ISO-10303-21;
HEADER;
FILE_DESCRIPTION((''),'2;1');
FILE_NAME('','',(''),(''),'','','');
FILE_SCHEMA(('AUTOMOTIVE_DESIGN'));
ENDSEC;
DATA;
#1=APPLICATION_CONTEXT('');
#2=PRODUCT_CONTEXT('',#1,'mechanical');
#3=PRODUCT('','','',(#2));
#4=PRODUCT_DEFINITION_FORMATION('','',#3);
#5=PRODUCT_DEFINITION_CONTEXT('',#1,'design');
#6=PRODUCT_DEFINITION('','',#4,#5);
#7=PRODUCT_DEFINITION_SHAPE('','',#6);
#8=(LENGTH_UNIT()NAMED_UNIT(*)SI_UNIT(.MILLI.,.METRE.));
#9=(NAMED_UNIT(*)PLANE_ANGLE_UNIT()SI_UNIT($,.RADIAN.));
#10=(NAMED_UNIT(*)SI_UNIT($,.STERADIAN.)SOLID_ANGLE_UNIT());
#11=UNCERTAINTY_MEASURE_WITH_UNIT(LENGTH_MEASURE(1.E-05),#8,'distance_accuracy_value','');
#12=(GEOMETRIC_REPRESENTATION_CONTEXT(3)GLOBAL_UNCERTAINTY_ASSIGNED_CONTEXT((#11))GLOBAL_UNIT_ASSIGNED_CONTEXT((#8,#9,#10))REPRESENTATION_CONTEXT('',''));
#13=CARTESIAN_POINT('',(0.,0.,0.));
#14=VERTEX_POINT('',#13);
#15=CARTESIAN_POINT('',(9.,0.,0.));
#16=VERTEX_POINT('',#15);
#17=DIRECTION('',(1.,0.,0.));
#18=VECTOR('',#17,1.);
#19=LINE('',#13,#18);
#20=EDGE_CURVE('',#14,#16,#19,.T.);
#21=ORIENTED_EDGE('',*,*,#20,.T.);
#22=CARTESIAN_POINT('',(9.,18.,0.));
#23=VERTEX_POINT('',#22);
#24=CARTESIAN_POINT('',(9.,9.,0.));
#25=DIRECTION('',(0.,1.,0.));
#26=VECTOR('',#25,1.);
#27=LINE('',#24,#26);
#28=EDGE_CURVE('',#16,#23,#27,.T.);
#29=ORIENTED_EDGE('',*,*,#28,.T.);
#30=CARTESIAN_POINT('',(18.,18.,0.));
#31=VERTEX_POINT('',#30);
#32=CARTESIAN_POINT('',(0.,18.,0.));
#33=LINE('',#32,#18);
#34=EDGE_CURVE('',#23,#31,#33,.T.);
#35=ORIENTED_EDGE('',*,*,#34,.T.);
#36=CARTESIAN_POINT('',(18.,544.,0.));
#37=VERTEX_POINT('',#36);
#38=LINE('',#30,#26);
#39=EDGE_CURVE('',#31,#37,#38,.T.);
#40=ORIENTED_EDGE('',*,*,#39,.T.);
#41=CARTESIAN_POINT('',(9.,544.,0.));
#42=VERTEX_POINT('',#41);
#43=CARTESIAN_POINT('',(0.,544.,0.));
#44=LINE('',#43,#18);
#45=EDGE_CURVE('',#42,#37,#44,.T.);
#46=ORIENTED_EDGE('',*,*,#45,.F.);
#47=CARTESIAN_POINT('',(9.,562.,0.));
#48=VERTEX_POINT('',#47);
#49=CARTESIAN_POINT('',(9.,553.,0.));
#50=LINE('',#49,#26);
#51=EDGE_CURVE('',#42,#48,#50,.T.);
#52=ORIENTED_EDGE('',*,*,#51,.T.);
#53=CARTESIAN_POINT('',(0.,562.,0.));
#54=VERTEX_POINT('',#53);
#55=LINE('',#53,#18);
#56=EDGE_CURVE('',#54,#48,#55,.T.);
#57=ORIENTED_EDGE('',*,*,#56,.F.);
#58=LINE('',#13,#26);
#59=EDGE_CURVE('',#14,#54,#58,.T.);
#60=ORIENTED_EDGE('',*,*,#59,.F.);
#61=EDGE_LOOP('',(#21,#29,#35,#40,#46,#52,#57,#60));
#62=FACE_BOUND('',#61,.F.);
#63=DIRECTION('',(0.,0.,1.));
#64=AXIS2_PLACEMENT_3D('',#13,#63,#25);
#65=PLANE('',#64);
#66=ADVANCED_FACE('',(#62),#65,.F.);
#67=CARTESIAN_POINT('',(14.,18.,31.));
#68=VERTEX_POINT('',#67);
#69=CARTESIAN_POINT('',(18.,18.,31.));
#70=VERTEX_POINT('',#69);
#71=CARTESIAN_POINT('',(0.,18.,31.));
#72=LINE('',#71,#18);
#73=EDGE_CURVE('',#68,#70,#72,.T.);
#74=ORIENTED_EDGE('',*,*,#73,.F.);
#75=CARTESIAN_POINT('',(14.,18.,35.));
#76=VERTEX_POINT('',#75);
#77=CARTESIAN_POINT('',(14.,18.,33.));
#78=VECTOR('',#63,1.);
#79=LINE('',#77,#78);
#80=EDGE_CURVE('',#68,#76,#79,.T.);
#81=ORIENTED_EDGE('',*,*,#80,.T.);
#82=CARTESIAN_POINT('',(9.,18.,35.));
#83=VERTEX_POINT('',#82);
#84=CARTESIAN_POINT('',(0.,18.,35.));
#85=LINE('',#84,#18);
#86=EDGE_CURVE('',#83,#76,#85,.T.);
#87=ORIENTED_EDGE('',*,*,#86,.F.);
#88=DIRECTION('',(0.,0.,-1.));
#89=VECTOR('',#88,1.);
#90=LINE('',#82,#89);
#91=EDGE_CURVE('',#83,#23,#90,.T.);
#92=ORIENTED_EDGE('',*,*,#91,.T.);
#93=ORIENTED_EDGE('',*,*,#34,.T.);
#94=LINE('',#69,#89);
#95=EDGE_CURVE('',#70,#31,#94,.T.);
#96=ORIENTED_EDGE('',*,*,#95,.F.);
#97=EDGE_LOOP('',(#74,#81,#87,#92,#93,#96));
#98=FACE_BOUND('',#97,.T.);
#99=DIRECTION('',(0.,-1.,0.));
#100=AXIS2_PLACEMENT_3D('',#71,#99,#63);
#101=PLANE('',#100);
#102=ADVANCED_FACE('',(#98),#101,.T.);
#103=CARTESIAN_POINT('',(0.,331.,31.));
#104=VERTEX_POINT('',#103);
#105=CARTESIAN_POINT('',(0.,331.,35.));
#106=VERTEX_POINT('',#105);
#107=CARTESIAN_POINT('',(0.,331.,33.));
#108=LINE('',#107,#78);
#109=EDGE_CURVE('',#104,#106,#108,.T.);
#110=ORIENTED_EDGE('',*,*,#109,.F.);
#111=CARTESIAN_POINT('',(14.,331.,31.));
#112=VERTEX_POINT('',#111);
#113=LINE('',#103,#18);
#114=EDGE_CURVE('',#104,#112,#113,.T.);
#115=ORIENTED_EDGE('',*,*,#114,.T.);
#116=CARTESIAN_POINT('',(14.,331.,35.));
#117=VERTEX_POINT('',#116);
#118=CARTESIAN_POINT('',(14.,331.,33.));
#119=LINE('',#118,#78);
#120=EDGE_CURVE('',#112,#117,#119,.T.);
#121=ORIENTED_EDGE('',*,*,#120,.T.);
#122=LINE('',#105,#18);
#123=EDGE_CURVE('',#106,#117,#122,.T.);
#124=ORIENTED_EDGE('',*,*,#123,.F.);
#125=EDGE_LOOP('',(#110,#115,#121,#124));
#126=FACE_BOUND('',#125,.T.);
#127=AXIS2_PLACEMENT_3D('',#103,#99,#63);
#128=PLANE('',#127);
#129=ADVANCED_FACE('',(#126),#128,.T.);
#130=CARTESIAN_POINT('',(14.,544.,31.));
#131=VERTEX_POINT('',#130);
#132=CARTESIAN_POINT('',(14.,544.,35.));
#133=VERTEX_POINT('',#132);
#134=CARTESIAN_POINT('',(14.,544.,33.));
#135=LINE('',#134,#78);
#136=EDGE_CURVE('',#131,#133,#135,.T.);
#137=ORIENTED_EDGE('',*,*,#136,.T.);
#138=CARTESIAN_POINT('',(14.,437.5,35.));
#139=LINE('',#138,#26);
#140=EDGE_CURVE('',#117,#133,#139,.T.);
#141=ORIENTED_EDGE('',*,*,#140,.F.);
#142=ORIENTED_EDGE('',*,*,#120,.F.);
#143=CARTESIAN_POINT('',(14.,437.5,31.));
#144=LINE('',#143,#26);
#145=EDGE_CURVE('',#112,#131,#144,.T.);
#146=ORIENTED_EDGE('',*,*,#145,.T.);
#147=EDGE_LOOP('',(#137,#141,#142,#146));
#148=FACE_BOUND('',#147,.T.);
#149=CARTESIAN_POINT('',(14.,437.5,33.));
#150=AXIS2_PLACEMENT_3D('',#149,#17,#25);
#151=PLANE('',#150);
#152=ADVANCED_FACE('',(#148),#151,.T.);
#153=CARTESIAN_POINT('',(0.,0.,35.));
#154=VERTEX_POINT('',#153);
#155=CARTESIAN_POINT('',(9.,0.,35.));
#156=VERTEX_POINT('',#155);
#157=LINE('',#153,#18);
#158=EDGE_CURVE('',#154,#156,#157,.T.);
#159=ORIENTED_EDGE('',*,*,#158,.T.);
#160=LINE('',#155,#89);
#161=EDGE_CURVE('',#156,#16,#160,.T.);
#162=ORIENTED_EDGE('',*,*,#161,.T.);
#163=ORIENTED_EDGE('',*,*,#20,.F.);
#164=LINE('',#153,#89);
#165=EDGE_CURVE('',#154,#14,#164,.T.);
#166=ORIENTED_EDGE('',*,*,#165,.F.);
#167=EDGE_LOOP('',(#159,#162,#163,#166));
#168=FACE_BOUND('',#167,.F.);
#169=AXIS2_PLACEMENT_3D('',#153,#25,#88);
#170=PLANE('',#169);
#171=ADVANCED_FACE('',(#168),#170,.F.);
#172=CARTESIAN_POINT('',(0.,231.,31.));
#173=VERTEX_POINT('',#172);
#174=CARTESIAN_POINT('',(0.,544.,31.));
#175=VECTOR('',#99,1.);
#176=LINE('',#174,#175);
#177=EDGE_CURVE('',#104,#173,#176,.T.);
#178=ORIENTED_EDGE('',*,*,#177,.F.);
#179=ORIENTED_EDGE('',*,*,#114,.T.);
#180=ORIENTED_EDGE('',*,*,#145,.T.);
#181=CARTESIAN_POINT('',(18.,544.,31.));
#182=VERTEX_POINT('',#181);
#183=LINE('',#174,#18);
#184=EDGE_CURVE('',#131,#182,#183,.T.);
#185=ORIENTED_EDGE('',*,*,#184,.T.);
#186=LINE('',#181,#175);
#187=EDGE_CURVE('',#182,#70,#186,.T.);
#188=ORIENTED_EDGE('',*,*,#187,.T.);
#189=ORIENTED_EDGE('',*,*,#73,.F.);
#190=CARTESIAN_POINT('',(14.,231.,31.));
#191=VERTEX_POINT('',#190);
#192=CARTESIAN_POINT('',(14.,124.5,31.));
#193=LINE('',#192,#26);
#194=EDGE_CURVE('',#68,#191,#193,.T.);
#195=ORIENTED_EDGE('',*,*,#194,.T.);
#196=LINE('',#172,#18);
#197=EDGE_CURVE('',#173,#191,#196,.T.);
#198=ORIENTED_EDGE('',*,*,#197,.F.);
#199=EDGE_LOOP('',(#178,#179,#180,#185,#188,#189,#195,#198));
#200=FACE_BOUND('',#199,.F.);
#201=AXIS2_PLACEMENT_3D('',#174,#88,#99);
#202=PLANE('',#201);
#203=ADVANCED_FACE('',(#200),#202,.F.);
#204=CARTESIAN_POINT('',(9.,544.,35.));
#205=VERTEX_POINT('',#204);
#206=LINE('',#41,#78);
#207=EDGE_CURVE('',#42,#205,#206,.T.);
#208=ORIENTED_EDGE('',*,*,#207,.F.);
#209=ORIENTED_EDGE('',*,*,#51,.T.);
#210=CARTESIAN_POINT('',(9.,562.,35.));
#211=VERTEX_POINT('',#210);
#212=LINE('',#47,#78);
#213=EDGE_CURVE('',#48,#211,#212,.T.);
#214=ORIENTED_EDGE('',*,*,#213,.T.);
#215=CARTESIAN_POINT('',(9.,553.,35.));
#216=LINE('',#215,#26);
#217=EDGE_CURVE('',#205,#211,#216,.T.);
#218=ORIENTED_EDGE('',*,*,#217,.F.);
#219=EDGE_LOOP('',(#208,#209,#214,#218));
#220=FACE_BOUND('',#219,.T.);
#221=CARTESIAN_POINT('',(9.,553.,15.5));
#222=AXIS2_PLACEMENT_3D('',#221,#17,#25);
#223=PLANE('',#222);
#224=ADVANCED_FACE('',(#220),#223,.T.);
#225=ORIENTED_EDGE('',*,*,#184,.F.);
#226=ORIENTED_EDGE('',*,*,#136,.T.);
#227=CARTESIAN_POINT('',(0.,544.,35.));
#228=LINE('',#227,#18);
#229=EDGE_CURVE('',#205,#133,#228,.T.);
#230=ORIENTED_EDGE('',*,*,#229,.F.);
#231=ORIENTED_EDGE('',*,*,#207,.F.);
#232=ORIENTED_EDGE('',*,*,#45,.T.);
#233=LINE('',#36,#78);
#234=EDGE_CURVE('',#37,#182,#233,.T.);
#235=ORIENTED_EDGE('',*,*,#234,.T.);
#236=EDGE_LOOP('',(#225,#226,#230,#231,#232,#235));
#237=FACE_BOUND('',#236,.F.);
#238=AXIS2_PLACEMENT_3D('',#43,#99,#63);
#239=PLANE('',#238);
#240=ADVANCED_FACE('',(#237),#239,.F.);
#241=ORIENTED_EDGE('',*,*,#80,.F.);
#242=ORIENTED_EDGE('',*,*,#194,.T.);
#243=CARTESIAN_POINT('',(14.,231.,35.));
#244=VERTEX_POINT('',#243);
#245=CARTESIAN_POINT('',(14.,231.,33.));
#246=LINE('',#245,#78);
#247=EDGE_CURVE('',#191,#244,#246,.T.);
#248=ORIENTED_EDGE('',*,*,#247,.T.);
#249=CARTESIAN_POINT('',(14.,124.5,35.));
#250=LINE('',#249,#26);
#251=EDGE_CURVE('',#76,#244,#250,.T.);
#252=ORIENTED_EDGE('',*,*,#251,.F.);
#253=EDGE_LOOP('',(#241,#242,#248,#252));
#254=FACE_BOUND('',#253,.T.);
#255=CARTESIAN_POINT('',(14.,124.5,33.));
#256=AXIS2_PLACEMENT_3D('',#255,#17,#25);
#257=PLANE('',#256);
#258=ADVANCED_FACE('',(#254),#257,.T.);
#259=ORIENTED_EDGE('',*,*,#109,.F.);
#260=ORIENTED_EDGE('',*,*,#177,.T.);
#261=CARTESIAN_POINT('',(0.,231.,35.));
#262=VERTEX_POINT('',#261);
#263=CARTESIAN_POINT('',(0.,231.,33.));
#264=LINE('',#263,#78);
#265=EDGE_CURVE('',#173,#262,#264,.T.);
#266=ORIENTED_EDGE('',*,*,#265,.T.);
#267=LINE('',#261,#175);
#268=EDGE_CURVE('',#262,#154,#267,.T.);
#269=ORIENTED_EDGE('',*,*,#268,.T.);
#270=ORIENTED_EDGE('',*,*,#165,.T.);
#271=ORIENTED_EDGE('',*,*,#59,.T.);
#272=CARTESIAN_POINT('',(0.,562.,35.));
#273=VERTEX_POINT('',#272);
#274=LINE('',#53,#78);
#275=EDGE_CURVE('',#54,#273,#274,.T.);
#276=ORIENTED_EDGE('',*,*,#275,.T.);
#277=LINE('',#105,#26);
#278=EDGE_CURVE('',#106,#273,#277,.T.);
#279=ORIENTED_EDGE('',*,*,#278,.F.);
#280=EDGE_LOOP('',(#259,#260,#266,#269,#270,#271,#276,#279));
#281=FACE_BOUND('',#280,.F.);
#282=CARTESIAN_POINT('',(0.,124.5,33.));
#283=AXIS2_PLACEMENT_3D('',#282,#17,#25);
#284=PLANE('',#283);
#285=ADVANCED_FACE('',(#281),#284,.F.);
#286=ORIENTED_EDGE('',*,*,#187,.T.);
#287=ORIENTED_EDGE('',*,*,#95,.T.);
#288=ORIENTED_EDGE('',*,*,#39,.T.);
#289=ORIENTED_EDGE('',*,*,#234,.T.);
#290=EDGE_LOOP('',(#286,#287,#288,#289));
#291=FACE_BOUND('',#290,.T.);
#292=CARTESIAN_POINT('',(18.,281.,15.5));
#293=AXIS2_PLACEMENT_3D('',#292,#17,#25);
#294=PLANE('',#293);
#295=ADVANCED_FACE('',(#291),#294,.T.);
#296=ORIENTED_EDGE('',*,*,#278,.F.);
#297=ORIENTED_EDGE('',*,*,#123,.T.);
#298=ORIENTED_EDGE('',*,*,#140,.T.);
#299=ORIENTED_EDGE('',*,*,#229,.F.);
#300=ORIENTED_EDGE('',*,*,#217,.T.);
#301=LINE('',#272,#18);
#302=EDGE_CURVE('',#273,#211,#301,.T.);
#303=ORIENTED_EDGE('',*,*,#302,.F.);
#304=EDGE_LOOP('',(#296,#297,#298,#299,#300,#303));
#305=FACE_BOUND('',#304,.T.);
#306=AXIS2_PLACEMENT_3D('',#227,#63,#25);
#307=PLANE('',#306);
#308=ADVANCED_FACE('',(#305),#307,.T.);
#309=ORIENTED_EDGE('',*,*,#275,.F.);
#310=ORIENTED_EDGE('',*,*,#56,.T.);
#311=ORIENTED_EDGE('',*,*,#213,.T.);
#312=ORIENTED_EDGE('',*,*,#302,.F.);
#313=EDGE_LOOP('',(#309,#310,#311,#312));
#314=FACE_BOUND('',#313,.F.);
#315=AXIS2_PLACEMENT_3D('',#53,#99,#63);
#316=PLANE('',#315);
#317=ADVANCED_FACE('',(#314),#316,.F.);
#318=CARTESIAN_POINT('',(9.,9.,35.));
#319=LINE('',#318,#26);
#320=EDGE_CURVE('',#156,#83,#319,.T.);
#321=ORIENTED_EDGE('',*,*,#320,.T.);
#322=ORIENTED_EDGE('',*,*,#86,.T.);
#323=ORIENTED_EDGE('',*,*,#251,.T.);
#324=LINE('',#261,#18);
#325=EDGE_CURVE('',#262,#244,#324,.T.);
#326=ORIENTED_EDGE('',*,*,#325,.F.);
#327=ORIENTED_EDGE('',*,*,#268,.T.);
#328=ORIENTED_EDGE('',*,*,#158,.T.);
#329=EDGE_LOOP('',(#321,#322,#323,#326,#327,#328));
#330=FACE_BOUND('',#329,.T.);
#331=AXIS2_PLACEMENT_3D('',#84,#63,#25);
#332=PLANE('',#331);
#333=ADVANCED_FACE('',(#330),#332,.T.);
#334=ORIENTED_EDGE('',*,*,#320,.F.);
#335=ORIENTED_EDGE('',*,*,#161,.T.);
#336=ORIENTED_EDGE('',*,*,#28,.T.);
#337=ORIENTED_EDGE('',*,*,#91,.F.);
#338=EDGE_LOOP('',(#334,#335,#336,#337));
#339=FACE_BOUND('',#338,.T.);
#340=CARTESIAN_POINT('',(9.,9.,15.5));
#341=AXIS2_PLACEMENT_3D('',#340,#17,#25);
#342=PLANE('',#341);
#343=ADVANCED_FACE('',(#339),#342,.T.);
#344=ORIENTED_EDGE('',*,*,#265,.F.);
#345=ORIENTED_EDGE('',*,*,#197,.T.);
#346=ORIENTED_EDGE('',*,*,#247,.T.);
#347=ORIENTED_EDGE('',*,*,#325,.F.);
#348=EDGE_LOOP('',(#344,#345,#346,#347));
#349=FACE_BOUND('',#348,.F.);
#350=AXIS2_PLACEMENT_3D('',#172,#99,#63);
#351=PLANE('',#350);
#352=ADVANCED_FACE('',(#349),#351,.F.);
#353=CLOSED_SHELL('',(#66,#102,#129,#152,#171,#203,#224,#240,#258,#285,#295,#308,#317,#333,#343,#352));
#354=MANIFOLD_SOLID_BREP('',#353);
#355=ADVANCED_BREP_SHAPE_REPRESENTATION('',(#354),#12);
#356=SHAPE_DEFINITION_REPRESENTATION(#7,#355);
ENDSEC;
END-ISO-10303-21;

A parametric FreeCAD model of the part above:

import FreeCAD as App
import Part
import Sketcher

V = App.Vector


def add_polygon(sketch, points):
    """Adds a closed chain of lines whose ends are joined by coincident constraints."""
    first, n = sketch.GeometryCount, len(points)
    for a, b in zip(points, points[1:] + points[:1]):
        sketch.addGeometry(Part.LineSegment(App.Vector(*a, 0), App.Vector(*b, 0)), False)
    for i in range(n):
        sketch.addConstraint(Sketcher.Constraint("Coincident", first + i, 2, first + (i + 1) % n, 1))

doc = App.newDocument("Part")
params = doc.addObject("Spreadsheet::Sheet", "Params")
for row, (alias, value) in enumerate([
    ("sketch1_width", "526 mm"),
    ("sketch1_height", "31 mm"),
    ("pad1_length", "18 mm"),
    ("sketch2_width", "18 mm"),
    ("sketch2_height", "35 mm"),
    ("pad2_length", "9 mm"),
    ("sketch3_width", "213 mm"),
    ("sketch3_height", "4 mm"),
    ("pad3_length", "14 mm"),
], start=1):
    params.set(f"A{row}", alias)
    params.set(f"B{row}", "=" + value)
    params.setAlias(f"B{row}", alias)

body = doc.addObject("PartDesign::Body", "Body")

# Sketch on YZ plane
sketch1 = body.newObject("Sketcher::SketchObject", "Sketch")
sketch1.AttachmentSupport = (doc.getObject("YZ_Plane"), [""])
sketch1.MapMode = "FlatFace"
add_polygon(sketch1, [(18, 31), (18, 0), (544, 0), (544, 31)])  # lines 0-3
sketch1.addConstraint([
    Sketcher.Constraint("Vertical", 0),
    Sketcher.Constraint("Horizontal", 1),
    Sketcher.Constraint("Vertical", 2),
    Sketcher.Constraint("Horizontal", 3),
    Sketcher.Constraint("PointOnObject", 0, 2, -1),
    Sketcher.Constraint("DistanceX", 1, 1, 1, 2, 526.0),
    Sketcher.Constraint("DistanceY", 0, 2, 0, 1, 31.0),
    Sketcher.Constraint("DistanceX", -1, 1, 0, 2, 18.0),
])
sketch1.setExpression("Constraints[9]", "Params.sketch1_width")
sketch1.setExpression("Constraints[10]", "Params.sketch1_height")
pad1 = body.newObject("PartDesign::Pad", "Pad")
pad1.Profile = sketch1
pad1.setExpression("Length", "Params.pad1_length")

# Sketch on YZ plane
sketch2 = body.newObject("Sketcher::SketchObject", "Sketch001")
sketch2.AttachmentSupport = (doc.getObject("YZ_Plane"), [""])
sketch2.MapMode = "FlatFace"
add_polygon(sketch2, [(0, 0), (18, 0), (18, 35), (0, 35)])  # lines 0-3
add_polygon(sketch2, [(544, 0), (562, 0), (562, 35), (544, 35)])  # lines 4-7
sketch2.addConstraint([
    Sketcher.Constraint("Horizontal", 0),
    Sketcher.Constraint("Vertical", 1),
    Sketcher.Constraint("Horizontal", 2),
    Sketcher.Constraint("Vertical", 3),
    Sketcher.Constraint("Horizontal", 4),
    Sketcher.Constraint("Vertical", 5),
    Sketcher.Constraint("Horizontal", 6),
    Sketcher.Constraint("Vertical", 7),
    Sketcher.Constraint("Coincident", 3, 2, -1, 1),
    Sketcher.Constraint("PointOnObject", 4, 2, -1),
    Sketcher.Constraint("Horizontal", 2, 2, 5, 2),
    Sketcher.Constraint("Equal", 2, 4),
    Sketcher.Constraint("DistanceX", 0, 1, 0, 2, 18.0),
    Sketcher.Constraint("DistanceY", 1, 1, 1, 2, 35.0),
    Sketcher.Constraint("DistanceX", -1, 1, 4, 2, 562.0),
])
sketch2.setExpression("Constraints[20]", "Params.sketch2_width")
sketch2.setExpression("Constraints[21]", "Params.sketch2_height")
pad2 = body.newObject("PartDesign::Pad", "Pad001")
pad2.Profile = sketch2
pad2.setExpression("Length", "Params.pad2_length")

# Sketch on YZ plane
sketch3 = body.newObject("Sketcher::SketchObject", "Sketch002")
sketch3.AttachmentSupport = (doc.getObject("YZ_Plane"), [""])
sketch3.MapMode = "FlatFace"
add_polygon(sketch3, [(18, 35), (18, 31), (231, 31), (231, 35)])  # lines 0-3
add_polygon(sketch3, [(331, 35), (331, 31), (544, 31), (544, 35)])  # lines 4-7
sketch3.addConstraint([
    Sketcher.Constraint("Vertical", 0),
    Sketcher.Constraint("Horizontal", 1),
    Sketcher.Constraint("Vertical", 2),
    Sketcher.Constraint("Horizontal", 3),
    Sketcher.Constraint("Vertical", 4),
    Sketcher.Constraint("Horizontal", 5),
    Sketcher.Constraint("Vertical", 6),
    Sketcher.Constraint("Horizontal", 7),
    Sketcher.Constraint("Horizontal", 1, 2, 4, 2),
    Sketcher.Constraint("Horizontal", 3, 2, 6, 2),
    Sketcher.Constraint("Equal", 3, 5),
    Sketcher.Constraint("DistanceX", 1, 1, 1, 2, 213.0),
    Sketcher.Constraint("DistanceY", 0, 2, 0, 1, 4.0),
    Sketcher.Constraint("DistanceX", -1, 1, 0, 2, 18.0),
    Sketcher.Constraint("DistanceY", -1, 1, 0, 2, 31.0),
    Sketcher.Constraint("DistanceX", -1, 1, 4, 2, 331.0),
])
sketch3.setExpression("Constraints[19]", "Params.sketch3_width")
sketch3.setExpression("Constraints[20]", "Params.sketch3_height")
pad3 = body.newObject("PartDesign::Pad", "Pad002")
pad3.Profile = sketch3
pad3.setExpression("Length", "Params.pad3_length")

doc.recompute()
